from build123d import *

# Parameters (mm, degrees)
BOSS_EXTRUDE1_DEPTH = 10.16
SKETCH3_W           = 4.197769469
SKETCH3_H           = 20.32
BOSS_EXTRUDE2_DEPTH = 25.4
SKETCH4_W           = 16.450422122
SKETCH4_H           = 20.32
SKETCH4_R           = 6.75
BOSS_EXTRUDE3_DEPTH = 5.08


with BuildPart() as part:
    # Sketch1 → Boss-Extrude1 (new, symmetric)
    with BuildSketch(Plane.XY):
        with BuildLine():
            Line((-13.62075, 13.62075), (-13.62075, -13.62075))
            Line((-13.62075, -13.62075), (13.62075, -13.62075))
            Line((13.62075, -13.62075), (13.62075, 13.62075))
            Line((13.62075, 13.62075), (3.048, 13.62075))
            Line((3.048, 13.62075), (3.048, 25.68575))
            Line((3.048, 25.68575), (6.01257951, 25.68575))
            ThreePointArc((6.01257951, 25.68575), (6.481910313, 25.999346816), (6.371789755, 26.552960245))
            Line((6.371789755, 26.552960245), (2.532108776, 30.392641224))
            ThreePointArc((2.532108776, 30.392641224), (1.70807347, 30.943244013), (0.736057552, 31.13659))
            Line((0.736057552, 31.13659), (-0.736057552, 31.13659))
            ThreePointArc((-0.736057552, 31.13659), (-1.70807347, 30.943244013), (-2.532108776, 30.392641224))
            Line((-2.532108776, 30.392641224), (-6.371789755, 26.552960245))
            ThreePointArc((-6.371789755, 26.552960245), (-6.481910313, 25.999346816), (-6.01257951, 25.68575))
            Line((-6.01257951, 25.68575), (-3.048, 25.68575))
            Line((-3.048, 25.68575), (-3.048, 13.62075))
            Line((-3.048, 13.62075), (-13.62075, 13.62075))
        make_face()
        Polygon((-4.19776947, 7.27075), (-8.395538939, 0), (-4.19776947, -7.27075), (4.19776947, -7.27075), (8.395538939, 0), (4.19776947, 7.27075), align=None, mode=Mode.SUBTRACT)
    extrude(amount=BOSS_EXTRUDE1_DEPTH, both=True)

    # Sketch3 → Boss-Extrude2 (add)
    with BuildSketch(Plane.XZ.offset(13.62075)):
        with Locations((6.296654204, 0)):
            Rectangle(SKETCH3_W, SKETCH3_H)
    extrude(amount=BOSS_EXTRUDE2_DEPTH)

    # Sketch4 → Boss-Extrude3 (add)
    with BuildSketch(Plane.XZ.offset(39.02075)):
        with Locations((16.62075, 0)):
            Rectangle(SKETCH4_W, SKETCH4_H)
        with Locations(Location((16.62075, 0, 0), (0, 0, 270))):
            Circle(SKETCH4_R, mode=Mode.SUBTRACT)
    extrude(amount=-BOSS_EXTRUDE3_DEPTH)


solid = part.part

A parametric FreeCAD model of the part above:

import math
import FreeCAD as App
import Part
import Sketcher
from FreeCAD import Vector
Q = App.Units.Quantity

doc = App.newDocument("Part")
body = doc.addObject("PartDesign::Body", "Body")

sketch1 = body.newObject("Sketcher::SketchObject", "Sketch")
sketch1.AttachmentSupport = (doc.getObject("XY_Plane"), [""])
sketch1.MapMode = "FlatFace"
sketch1.addGeometry([
    Part.LineSegment(Vector(-13.6, 13.6, 0), Vector(-13.6, -13.6, 0)),
    Part.LineSegment(Vector(-13.6, -13.6, 0), Vector(13.6, -13.6, 0)),
    Part.LineSegment(Vector(13.6, -13.6, 0), Vector(13.6, 13.6, 0)),
    Part.LineSegment(Vector(13.6, 13.6, 0), Vector(3, 13.6, 0)),
    Part.LineSegment(Vector(3, 13.6, 0), Vector(3, 25.7, 0)),
    Part.LineSegment(Vector(3, 25.7, 0), Vector(6, 25.7, 0)),
    Part.ArcOfCircle(Part.Circle(Vector(6, 26.2, 0), Vector(0, 0, 1), 0.5), math.radians(-90), math.radians(45)),
    Part.LineSegment(Vector(6.4, 26.6, 0), Vector(2.5, 30.4, 0)),
    Part.ArcOfCircle(Part.Circle(Vector(0.7, 28.6, 0), Vector(0, 0, 1), 2.5), math.radians(45), math.radians(90)),
    Part.LineSegment(Vector(0.7, 31.1, 0), Vector(-0.7, 31.1, 0)),
    Part.ArcOfCircle(Part.Circle(Vector(-0.7, 28.6, 0), Vector(0, 0, 1), 2.5), math.radians(90), math.radians(135)),
    Part.LineSegment(Vector(-2.5, 30.4, 0), Vector(-6.4, 26.6, 0)),
    Part.ArcOfCircle(Part.Circle(Vector(-6, 26.2, 0), Vector(0, 0, 1), 0.5), math.radians(135), math.radians(270)),
    Part.LineSegment(Vector(-6, 25.7, 0), Vector(-3, 25.7, 0)),
    Part.LineSegment(Vector(-3, 25.7, 0), Vector(-3, 13.6, 0)),
    Part.LineSegment(Vector(-3, 13.6, 0), Vector(-13.6, 13.6, 0)),
    Part.LineSegment(Vector(-8.4, 0, 0), Vector(-4.2, 7.3, 0)),
    Part.LineSegment(Vector(-4.2, 7.3, 0), Vector(4.2, 7.3, 0)),
    Part.LineSegment(Vector(4.2, 7.3, 0), Vector(8.4, 0, 0)),
    Part.LineSegment(Vector(8.4, 0, 0), Vector(4.2, -7.3, 0)),
    Part.LineSegment(Vector(4.2, -7.3, 0), Vector(-4.2, -7.3, 0)),
    Part.LineSegment(Vector(-4.2, -7.3, 0), Vector(-8.4, 0, 0)),
], False)
sketch1.addConstraint([
    Sketcher.Constraint("Coincident", 0, 2, 1, 1),
    Sketcher.Constraint("Coincident", 1, 2, 2, 1),
    Sketcher.Constraint("Coincident", 2, 2, 3, 1),
    Sketcher.Constraint("Coincident", 3, 2, 4, 1),
    Sketcher.Constraint("Coincident", 4, 2, 5, 1),
    Sketcher.Constraint("Tangent", 5, 2, 6, 1),
    Sketcher.Constraint("Tangent", 6, 2, 7, 1),
    Sketcher.Constraint("Tangent", 7, 2, 8, 1),
    Sketcher.Constraint("Tangent", 8, 2, 9, 1),
    Sketcher.Constraint("Tangent", 9, 2, 10, 1),
    Sketcher.Constraint("Tangent", 10, 2, 11, 1),
    Sketcher.Constraint("Tangent", 11, 2, 12, 1),
    Sketcher.Constraint("Tangent", 12, 2, 13, 1),
    Sketcher.Constraint("Coincident", 13, 2, 14, 1),
    Sketcher.Constraint("Coincident", 14, 2, 15, 1),
    Sketcher.Constraint("Coincident", 15, 2, 0, 1),
    Sketcher.Constraint("Coincident", 16, 2, 17, 1),
    Sketcher.Constraint("Coincident", 17, 2, 18, 1),
    Sketcher.Constraint("Coincident", 18, 2, 19, 1),
    Sketcher.Constraint("Coincident", 19, 2, 20, 1),
    Sketcher.Constraint("Coincident", 20, 2, 21, 1),
    Sketcher.Constraint("Coincident", 21, 2, 16, 1),
    Sketcher.Constraint("Vertical", 0),
    Sketcher.Constraint("Horizontal", 1),
    Sketcher.Constraint("Vertical", 2),
    Sketcher.Constraint("Horizontal", 3),
    Sketcher.Constraint("Vertical", 4),
    Sketcher.Constraint("Horizontal", 5),
    Sketcher.Constraint("Horizontal", 9),
    Sketcher.Constraint("Horizontal", 13),
    Sketcher.Constraint("Vertical", 14),
    Sketcher.Constraint("Horizontal", 15),
    Sketcher.Constraint("Horizontal", 17),
    Sketcher.Constraint("Horizontal", 20),
    Sketcher.Constraint("Equal", 8, 10),
    Sketcher.Constraint("Equal", 6, 12),
    Sketcher.Constraint("Symmetric", 0, 2, 2, 2, -1, 1),
    Sketcher.Constraint("Symmetric", 16, 2, 19, 2, -1, 1),
    Sketcher.Constraint("Symmetric", 18, 2, 21, 2, -1, 1),
    Sketcher.Constraint("Symmetric", 6, 3, 12, 3, -2),
    Sketcher.Constraint("Symmetric", 3, 2, 14, 2, -2),
    Sketcher.Constraint("PointOnObject", 18, 2, -1),
    Sketcher.Constraint("Perpendicular", 7, 11),
    Sketcher.Constraint("Parallel", 18, 21),
    Sketcher.Constraint("Horizontal", 7, 2, 10, 2),
    Sketcher.Constraint("Vertical", 17, 2, 19, 2),
    Sketcher.Constraint("Equal", 1, 0),
    Sketcher.Constraint("Radius", 8, Q("0.1 in")),
    Sketcher.Constraint("Radius", 6, Q("0.02 in")),
    Sketcher.Constraint("Angle", 16, Q("60 deg")),
    Sketcher.Constraint("DistanceY", 4, 1, 4, 2, Q("0.475 in")),
    Sketcher.Constraint("DistanceX", -1, 1, 3, 2, Q("0.12 in")),
    Sketcher.Constraint("DistanceY", 16, 2, 14, 2, Q("0.25 in")),
    Sketcher.Constraint("DistanceX", 1, 1, 1, 2, Q("1.0725 in")),
    Sketcher.Constraint("DistanceY", 6, 3, 8, 3, Q("0.0946 in")),
    Sketcher.Constraint("DistanceX", 5, 1, 5, 2, Q("2.96458 mm")),
    Sketcher.Constraint("DistanceX", 17, 1, 17, 2, Q("8.395539 mm")),
])
pad1 = body.newObject("PartDesign::Pad", "Pad")
pad1.Profile = sketch1
pad1.Length = Q("0.8 in")
pad1.Midplane = True

sketch2 = body.newObject("Sketcher::SketchObject", "Sketch001")
sketch2.AttachmentSupport = (doc.getObject("XZ_Plane"), [""])
sketch2.MapMode = "FlatFace"
sketch2.AttachmentOffset = App.Placement(Vector(0, 0, 13.62075), App.Rotation())
sketch2.addGeometry([
    Part.LineSegment(Vector(4.2, 10.2, 0), Vector(4.2, -10.2, 0)),
    Part.LineSegment(Vector(4.2, -10.2, 0), Vector(8.4, -10.2, 0)),
    Part.LineSegment(Vector(8.4, -10.2, 0), Vector(8.4, 10.2, 0)),
    Part.LineSegment(Vector(8.4, 10.2, 0), Vector(4.2, 10.2, 0)),
], False)
sketch2.addConstraint([
    Sketcher.Constraint("Coincident", 0, 2, 1, 1),
    Sketcher.Constraint("Coincident", 1, 2, 2, 1),
    Sketcher.Constraint("Coincident", 2, 2, 3, 1),
    Sketcher.Constraint("Coincident", 3, 2, 0, 1),
    Sketcher.Constraint("Vertical", 0),
    Sketcher.Constraint("Horizontal", 1),
    Sketcher.Constraint("Vertical", 2),
    Sketcher.Constraint("Horizontal", 3),
    Sketcher.Constraint("DistanceY", 0, 2, 0, 1, Q("0.8 in")),
    Sketcher.Constraint("DistanceY", 0, 2, -1, 1, Q("0.4 in")),
    Sketcher.Constraint("DistanceX", 1, 1, 1, 2, Q("4.197769 mm")),
    Sketcher.Constraint("DistanceX", -1, 1, 0, 2, Q("4.197769 mm")),
])
pad2 = body.newObject("PartDesign::Pad", "Pad001")
pad2.Profile = sketch2
pad2.Length = Q("1 in")

sketch3 = body.newObject("Sketcher::SketchObject", "Sketch002")
sketch3.AttachmentSupport = (doc.getObject("XZ_Plane"), [""])
sketch3.MapMode = "FlatFace"
sketch3.AttachmentOffset = App.Placement(Vector(0, 0, 39.02075), App.Rotation())
sketch3.addGeometry([
    Part.LineSegment(Vector(8, 10, 0), Vector(8, -10, 0)),
    Part.LineSegment(Vector(8, -10, 0), Vector(25, -10, 0)),
    Part.LineSegment(Vector(25, -10, 0), Vector(25, 10, 0)),
    Part.LineSegment(Vector(25, 10, 0), Vector(8, 10, 0)),
    Part.Circle(Vector(17, 0, 0), Vector(0, 0, 1), 7),
], False)
sketch3.addConstraint([
    Sketcher.Constraint("Coincident", 0, 2, 1, 1),
    Sketcher.Constraint("Coincident", 1, 2, 2, 1),
    Sketcher.Constraint("Coincident", 2, 2, 3, 1),
    Sketcher.Constraint("Coincident", 3, 2, 0, 1),
    Sketcher.Constraint("Vertical", 0),
    Sketcher.Constraint("Horizontal", 1),
    Sketcher.Constraint("Vertical", 2),
    Sketcher.Constraint("Horizontal", 3),
    Sketcher.Constraint("PointOnObject", 4, 3, -1),
    Sketcher.Constraint("DistanceY", 0, 2, 0, 1, Q("0.8 in")),
    Sketcher.Constraint("DistanceY", 0, 2, -1, 1, Q("0.4 in")),
    Sketcher.Constraint("Diameter", 4, Q("13.5 mm")),
    Sketcher.Constraint("DistanceX", 1, 1, 1, 2, Q("16.450422 mm")),
    Sketcher.Constraint("DistanceX", -1, 1, 4, 3, Q("16.62075 mm")),
    Sketcher.Constraint("DistanceX", -1, 1, 0, 2, Q("8.395539 mm")),
])
pad3 = body.newObject("PartDesign::Pad", "Pad002")
pad3.Profile = sketch3
pad3.Length = Q("0.2 in")
pad3.Reversed = True

doc.recompute()
